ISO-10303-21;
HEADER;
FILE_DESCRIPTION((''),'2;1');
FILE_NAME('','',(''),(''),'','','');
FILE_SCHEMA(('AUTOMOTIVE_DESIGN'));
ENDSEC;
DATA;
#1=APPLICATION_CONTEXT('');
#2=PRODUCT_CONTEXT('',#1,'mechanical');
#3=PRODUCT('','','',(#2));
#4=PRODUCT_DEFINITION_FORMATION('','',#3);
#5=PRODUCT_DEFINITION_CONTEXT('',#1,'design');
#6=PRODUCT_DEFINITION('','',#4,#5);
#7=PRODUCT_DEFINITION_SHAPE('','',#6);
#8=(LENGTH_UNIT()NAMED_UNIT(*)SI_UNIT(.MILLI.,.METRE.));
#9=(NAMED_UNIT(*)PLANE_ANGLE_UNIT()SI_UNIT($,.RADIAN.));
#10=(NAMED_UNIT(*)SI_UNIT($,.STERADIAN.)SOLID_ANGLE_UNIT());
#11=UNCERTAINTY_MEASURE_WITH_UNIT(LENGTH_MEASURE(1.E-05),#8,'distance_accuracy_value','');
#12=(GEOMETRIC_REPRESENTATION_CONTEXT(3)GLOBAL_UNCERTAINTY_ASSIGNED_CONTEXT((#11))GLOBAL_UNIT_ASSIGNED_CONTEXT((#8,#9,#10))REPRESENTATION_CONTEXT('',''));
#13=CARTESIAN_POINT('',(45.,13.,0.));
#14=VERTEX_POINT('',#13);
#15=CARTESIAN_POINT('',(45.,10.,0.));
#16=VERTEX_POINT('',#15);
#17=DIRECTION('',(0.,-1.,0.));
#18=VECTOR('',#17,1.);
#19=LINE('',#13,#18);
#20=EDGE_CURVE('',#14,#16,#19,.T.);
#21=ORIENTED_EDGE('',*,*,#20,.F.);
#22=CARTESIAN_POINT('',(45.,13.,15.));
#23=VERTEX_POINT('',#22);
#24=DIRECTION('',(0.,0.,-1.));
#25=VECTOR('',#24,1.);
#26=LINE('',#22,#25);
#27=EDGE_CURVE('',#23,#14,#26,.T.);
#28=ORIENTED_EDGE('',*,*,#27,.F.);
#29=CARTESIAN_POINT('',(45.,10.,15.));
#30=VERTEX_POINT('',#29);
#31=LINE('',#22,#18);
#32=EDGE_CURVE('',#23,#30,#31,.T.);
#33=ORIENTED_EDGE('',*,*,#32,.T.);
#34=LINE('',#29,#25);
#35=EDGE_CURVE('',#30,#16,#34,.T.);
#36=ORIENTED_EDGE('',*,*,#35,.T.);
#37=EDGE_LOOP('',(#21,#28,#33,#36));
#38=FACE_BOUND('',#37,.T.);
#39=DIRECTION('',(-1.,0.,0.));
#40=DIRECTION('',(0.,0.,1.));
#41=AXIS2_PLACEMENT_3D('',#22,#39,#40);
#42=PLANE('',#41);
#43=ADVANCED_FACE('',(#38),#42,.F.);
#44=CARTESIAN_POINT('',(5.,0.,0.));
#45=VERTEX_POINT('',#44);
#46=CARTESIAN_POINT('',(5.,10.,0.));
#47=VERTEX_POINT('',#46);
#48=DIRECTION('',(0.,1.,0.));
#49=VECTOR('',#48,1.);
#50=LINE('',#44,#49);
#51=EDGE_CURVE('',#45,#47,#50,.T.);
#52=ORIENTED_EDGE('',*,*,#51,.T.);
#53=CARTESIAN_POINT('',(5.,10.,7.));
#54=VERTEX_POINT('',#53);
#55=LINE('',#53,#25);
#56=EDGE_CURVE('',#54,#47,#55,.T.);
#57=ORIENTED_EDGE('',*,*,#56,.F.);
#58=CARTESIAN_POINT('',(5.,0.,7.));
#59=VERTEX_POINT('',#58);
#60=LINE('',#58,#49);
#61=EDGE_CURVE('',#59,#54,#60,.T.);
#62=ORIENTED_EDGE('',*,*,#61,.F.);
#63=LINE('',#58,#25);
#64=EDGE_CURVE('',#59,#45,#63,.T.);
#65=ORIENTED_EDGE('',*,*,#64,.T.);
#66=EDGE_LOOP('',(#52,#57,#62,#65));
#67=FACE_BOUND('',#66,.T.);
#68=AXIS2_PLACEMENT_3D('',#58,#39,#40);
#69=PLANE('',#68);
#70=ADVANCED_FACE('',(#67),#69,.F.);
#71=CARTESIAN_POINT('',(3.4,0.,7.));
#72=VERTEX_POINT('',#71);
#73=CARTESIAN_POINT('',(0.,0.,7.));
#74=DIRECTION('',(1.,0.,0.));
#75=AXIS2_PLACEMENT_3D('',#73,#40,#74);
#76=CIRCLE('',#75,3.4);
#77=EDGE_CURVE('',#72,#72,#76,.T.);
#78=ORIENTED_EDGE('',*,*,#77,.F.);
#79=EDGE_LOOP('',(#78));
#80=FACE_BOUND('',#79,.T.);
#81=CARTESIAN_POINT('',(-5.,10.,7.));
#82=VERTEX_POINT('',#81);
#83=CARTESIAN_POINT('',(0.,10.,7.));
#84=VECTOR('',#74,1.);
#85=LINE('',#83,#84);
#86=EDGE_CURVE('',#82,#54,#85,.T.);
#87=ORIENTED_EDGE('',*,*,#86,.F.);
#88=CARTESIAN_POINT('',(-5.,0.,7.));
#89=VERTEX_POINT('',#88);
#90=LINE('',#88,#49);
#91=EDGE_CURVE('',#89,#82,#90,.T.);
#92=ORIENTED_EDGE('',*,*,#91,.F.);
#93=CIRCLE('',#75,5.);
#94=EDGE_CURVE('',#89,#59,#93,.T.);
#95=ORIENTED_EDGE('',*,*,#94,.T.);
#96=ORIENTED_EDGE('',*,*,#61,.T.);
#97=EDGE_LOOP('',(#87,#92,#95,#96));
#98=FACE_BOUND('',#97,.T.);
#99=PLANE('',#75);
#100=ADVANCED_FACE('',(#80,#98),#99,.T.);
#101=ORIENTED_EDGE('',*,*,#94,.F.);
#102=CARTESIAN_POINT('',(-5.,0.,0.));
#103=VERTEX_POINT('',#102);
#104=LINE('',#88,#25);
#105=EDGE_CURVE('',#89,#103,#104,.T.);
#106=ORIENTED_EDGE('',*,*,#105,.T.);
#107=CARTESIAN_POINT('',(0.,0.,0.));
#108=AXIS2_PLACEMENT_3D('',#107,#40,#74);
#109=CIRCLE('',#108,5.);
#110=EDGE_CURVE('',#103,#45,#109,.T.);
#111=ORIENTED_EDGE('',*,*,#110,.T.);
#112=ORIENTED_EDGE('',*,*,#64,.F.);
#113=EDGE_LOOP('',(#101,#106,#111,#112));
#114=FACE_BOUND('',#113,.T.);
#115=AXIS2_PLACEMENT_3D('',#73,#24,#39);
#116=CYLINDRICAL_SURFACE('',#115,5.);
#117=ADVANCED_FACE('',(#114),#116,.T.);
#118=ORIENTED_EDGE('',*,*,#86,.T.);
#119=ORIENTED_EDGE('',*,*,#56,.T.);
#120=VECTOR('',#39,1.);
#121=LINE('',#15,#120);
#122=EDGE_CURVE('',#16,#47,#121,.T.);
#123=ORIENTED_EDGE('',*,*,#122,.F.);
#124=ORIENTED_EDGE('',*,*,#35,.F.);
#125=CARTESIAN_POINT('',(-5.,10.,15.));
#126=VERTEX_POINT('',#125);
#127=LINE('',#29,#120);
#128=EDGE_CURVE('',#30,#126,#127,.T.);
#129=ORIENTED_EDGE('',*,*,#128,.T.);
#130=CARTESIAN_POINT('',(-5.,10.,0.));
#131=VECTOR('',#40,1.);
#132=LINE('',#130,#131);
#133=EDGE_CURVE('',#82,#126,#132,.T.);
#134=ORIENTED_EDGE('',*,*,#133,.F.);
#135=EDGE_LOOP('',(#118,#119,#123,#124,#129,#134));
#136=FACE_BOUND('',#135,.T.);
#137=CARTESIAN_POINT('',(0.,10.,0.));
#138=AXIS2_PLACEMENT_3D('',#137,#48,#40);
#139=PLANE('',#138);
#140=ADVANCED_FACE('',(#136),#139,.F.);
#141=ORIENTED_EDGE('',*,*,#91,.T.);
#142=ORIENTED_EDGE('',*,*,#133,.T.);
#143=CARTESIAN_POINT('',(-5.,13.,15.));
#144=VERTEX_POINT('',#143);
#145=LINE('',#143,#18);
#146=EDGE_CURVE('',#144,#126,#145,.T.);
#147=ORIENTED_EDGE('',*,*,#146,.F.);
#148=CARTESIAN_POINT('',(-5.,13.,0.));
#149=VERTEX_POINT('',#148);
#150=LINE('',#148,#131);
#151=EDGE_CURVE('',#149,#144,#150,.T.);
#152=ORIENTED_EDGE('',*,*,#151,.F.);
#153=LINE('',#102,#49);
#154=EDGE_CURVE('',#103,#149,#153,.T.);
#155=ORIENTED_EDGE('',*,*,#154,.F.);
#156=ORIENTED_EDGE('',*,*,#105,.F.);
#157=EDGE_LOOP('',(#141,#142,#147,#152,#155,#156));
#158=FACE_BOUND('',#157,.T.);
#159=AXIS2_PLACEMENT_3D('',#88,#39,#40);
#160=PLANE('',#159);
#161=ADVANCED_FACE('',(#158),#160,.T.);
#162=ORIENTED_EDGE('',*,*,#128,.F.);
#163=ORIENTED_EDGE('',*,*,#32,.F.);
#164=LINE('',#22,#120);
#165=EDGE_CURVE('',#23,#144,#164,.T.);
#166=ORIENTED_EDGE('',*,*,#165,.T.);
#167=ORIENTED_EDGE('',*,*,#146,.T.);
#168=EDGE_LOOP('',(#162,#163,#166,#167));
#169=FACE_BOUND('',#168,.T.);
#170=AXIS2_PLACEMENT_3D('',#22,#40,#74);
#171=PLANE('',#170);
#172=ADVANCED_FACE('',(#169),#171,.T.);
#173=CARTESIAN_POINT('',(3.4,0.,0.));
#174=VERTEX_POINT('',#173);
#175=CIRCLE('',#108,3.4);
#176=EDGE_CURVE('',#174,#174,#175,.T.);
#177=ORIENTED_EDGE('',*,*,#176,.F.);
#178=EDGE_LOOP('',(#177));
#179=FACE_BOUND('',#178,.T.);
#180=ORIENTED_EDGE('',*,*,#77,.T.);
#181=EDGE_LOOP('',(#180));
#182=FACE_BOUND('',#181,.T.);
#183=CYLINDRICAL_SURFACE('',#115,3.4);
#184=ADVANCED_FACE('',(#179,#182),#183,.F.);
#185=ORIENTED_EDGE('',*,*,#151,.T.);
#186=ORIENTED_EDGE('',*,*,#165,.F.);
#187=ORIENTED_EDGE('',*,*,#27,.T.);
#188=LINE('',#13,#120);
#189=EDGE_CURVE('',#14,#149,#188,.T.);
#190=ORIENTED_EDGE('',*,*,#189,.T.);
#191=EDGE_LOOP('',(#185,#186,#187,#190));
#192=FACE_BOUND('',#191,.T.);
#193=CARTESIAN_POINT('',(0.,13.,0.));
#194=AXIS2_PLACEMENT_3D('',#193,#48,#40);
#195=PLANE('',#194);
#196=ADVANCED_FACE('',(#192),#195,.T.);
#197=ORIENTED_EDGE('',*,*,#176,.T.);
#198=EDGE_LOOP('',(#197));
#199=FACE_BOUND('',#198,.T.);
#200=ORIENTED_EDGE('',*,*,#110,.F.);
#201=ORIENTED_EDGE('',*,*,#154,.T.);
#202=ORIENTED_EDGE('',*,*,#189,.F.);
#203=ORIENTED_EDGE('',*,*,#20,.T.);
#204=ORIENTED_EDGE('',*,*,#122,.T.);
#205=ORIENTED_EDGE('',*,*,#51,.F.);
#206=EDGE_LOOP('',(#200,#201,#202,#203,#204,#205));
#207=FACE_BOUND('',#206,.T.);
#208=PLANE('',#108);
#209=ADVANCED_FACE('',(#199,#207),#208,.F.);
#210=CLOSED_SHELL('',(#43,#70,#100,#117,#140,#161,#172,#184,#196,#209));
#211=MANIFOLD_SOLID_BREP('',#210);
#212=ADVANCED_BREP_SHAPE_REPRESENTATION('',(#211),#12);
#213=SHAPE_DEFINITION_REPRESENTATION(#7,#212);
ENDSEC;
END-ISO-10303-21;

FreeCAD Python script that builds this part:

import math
import FreeCAD as App
import Part
import Sketcher
from FreeCAD import Vector
Q = App.Units.Quantity

doc = App.newDocument("Part")
body = doc.addObject("PartDesign::Body", "Body")

sketch1 = body.newObject("Sketcher::SketchObject", "Sketch")
sketch1.AttachmentSupport = (doc.getObject("XY_Plane"), [""])
sketch1.MapMode = "FlatFace"
sketch1.addGeometry(Part.LineSegment(Vector(-5, 10, 0), Vector(-5, 0, 0)), False)
sketch1.addGeometry(Part.ArcOfCircle(Part.Circle(Vector(0, 0, 0), Vector(0, 0, 1), 5), math.radians(180), math.radians(360)), False)
sketch1.addGeometry(Part.LineSegment(Vector(5, 0, 0), Vector(5, 10, 0)), False)
sketch1.addGeometry(Part.LineSegment(Vector(5, 10, 0), Vector(-5, 10, 0)), False)
sketch1.addGeometry(Part.Circle(Vector(0, 0, 0), Vector(0, 0, 1), 3.4), False)
sketch1.addConstraint(Sketcher.Constraint("Tangent", 0, 2, 1, 1))
sketch1.addConstraint(Sketcher.Constraint("Tangent", 1, 2, 2, 1))
sketch1.addConstraint(Sketcher.Constraint("Coincident", 2, 2, 3, 1))
sketch1.addConstraint(Sketcher.Constraint("Coincident", 3, 2, 0, 1))
sketch1.addConstraint(Sketcher.Constraint("Vertical", 0))
sketch1.addConstraint(Sketcher.Constraint("Vertical", 2))
sketch1.addConstraint(Sketcher.Constraint("Horizontal", 3))
sketch1.addConstraint(Sketcher.Constraint("Coincident", 1, 3, -1, 1))
sketch1.addConstraint(Sketcher.Constraint("Coincident", 4, 3, -1, 1))
sketch1.addConstraint(Sketcher.Constraint("Equal", 3, 0))
sketch1.addConstraint(Sketcher.Constraint("Radius", 1, Q("5 mm")))
sketch1.addConstraint(Sketcher.Constraint("Diameter", 4, Q("6.8 mm")))
pad1 = body.newObject("PartDesign::Pad", "Pad")
pad1.Profile = sketch1
pad1.Length = 7

sketch2 = body.newObject("Sketcher::SketchObject", "Sketch001")
sketch2.AttachmentSupport = (doc.getObject("XZ_Plane"), [""])
sketch2.MapMode = "FlatFace"
sketch2.AttachmentOffset = App.Placement(Vector(0, 0, -10), App.Rotation())
sketch2.addGeometry(Part.LineSegment(Vector(-5, 0, 0), Vector(-5, 15, 0)), False)
sketch2.addGeometry(Part.LineSegment(Vector(-5, 15, 0), Vector(45, 15, 0)), False)
sketch2.addGeometry(Part.LineSegment(Vector(45, 15, 0), Vector(45, 0, 0)), False)
sketch2.addGeometry(Part.LineSegment(Vector(45, 0, 0), Vector(-5, 0, 0)), False)
sketch2.addConstraint(Sketcher.Constraint("Coincident", 0, 2, 1, 1))
sketch2.addConstraint(Sketcher.Constraint("Coincident", 1, 2, 2, 1))
sketch2.addConstraint(Sketcher.Constraint("Coincident", 2, 2, 3, 1))
sketch2.addConstraint(Sketcher.Constraint("Coincident", 3, 2, 0, 1))
sketch2.addConstraint(Sketcher.Constraint("Vertical", 0))
sketch2.addConstraint(Sketcher.Constraint("Horizontal", 1))
sketch2.addConstraint(Sketcher.Constraint("Vertical", 2))
sketch2.addConstraint(Sketcher.Constraint("Horizontal", 3))
sketch2.addConstraint(Sketcher.Constraint("PointOnObject", 2, 2, -1))
sketch2.addConstraint(Sketcher.Constraint("DistanceX", 1, 1, 1, 2, Q("50 mm")))
sketch2.addConstraint(Sketcher.Constraint("DistanceY", 0, 1, 0, 2, Q("15 mm")))
sketch2.addConstraint(Sketcher.Constraint("DistanceX", 0, 2, -1, 1, Q("5 mm")))
pad2 = body.newObject("PartDesign::Pad", "Pad001")
pad2.Profile = sketch2
pad2.Length = 3
pad2.Reversed = True

doc.recompute()
